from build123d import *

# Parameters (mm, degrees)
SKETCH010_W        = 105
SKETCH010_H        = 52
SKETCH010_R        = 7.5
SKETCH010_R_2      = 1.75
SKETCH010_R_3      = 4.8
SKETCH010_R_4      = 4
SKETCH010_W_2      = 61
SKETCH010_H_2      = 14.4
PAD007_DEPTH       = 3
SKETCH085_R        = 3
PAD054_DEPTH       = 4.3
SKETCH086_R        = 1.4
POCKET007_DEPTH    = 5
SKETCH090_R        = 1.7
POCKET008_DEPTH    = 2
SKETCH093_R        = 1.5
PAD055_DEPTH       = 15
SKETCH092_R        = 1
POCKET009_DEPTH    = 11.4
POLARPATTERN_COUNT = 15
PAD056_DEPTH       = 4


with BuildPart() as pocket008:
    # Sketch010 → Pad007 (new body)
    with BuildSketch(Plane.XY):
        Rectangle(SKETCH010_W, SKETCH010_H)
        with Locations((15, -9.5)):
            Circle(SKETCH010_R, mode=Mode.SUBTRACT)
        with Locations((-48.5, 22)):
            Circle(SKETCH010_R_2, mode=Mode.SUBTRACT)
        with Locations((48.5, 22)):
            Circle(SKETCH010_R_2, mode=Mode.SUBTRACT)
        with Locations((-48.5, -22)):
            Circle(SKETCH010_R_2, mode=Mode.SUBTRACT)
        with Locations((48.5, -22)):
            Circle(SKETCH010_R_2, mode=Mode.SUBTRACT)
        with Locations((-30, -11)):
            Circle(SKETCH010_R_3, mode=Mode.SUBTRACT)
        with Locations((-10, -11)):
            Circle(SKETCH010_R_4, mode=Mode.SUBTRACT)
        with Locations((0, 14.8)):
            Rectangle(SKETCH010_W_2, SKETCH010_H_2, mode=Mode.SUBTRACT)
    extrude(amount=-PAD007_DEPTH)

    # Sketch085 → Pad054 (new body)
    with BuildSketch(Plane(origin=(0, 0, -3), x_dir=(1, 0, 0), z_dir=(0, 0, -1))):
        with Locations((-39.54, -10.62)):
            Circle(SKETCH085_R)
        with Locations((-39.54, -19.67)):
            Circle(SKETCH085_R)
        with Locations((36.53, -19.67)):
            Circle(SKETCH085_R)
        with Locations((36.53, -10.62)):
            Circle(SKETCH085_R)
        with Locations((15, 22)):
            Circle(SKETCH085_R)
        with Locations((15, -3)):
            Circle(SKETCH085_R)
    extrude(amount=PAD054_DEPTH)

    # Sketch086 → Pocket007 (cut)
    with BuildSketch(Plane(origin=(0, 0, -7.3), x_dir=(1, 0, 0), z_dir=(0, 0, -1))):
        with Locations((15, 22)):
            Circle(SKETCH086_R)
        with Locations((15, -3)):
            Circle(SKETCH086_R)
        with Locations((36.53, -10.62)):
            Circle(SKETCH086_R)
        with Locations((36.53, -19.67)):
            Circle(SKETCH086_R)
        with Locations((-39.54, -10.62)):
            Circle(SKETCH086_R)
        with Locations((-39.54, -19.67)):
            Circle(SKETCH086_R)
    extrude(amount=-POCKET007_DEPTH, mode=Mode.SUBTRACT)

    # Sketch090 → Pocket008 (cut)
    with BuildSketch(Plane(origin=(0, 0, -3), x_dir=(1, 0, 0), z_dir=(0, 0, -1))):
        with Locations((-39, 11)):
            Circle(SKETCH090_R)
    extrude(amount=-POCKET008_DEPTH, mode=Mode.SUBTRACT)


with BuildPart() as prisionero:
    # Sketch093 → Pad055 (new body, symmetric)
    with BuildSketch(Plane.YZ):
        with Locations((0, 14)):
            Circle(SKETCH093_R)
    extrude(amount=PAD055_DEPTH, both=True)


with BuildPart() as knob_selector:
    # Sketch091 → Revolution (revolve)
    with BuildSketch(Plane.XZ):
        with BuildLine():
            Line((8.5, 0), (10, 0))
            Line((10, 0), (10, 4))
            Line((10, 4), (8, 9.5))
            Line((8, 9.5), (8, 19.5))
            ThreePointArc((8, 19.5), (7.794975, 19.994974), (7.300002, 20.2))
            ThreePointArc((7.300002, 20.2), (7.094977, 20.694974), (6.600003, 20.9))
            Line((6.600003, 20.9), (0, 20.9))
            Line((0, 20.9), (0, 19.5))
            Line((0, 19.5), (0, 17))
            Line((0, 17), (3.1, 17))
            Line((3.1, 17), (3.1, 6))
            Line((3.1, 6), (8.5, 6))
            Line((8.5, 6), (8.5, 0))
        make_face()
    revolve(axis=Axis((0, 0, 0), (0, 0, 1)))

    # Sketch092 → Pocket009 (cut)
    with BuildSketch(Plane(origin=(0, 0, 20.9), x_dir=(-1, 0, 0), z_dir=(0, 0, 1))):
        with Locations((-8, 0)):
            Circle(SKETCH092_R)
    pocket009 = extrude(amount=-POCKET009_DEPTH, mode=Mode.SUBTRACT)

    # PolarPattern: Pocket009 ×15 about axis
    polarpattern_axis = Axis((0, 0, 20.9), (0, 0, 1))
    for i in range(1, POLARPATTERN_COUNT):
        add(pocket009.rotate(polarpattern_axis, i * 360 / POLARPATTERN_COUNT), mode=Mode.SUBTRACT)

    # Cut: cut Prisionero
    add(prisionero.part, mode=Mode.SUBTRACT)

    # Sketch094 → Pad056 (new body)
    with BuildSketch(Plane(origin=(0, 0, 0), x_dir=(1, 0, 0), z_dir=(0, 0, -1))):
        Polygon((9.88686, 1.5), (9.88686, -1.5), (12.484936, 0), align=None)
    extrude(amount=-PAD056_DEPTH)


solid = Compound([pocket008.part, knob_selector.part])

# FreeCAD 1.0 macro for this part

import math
import FreeCAD as App
import Part
import Sketcher

V = App.Vector
Q = App.Units.Quantity

doc = App.newDocument("Part")
params = doc.addObject("Spreadsheet::Sheet", "Params")
for row, (alias, value) in enumerate([
    ("sketch1_diameter", "8 mm"),
    ("sketch1_diameter2", "15 mm"),
    ("sketch1_diameter3", "3.5 mm"),
    ("sketch1_diameter4", "9.6 mm"),
    ("sketch1_width", "105 mm"),
    ("pad1_length", "3 mm"),
    ("sketch2_diameter", "6 mm"),
    ("pad2_length", "4.3 mm"),
    ("sketch3_diameter", "2.8 mm"),
    ("pocket1_length", "5 mm"),
    ("sketch4_diameter", "3.4 mm"),
    ("pocket2_length", "2 mm"),
    ("sketch5_diameter", "3 mm"),
    ("pad3_length", "30 mm"),
    ("sketch6_radius", "0.700001 mm"),
    ("sketch6_height", "4 mm"),
    ("sketch6_height2", "10 mm"),
    ("sketch6_height3", "11 mm"),
    ("sketch6_height4", "6 mm"),
    ("revolution_angle", "360 deg"),
    ("sketch7_diameter", "2 mm"),
    ("pocket3_length", "11.4 mm"),
    ("sketch8_height", "3 mm"),
    ("pad4_length", "4 mm"),
], start=1):
    params.set(f"A{row}", alias)
    params.set(f"B{row}", "=" + value)
    params.setAlias(f"B{row}", alias)

body = doc.addObject("PartDesign::Body", "Body")

# Sketch on XY plane
sketch1 = body.newObject("Sketcher::SketchObject", "Sketch")
sketch1.AttachmentSupport = (doc.getObject("XY_Plane"), [""])
sketch1.MapMode = "FlatFace"
sketch1.addGeometry(Part.LineSegment(V(-52.5, 26, 0), V(-52.5, -26, 0)), False)
sketch1.addGeometry(Part.LineSegment(V(-52.5, -26, 0), V(52.5, -26, 0)), False)
sketch1.addGeometry(Part.LineSegment(V(52.5, -26, 0), V(52.5, 26, 0)), False)
sketch1.addGeometry(Part.LineSegment(V(52.5, 26, 0), V(-52.5, 26, 0)), False)
sketch1.addGeometry(Part.Circle(V(-48.5, -22, 0), V(0, 0, 1), 1.75), False)
sketch1.addGeometry(Part.Circle(V(-30, -11, 0), V(0, 0, 1), 4.8), False)
sketch1.addGeometry(Part.Circle(V(-10, -11, 0), V(0, 0, 1), 4), False)
sketch1.addGeometry(Part.Circle(V(48.5, -22, 0), V(0, 0, 1), 1.75), False)
sketch1.addGeometry(Part.Circle(V(15, -9.5, 0), V(0, 0, 1), 7.5), False)
sketch1.addGeometry(Part.Circle(V(-48.5, 22, 0), V(0, 0, 1), 1.75), False)
sketch1.addGeometry(Part.LineSegment(V(30.5, 7.6, 0), V(-30.5, 7.6, 0)), False)
sketch1.addGeometry(Part.LineSegment(V(-30.5, 7.6, 0), V(-30.5, 22, 0)), False)
sketch1.addGeometry(Part.LineSegment(V(-30.5, 22, 0), V(30.5, 22, 0)), False)
sketch1.addGeometry(Part.LineSegment(V(30.5, 22, 0), V(30.5, 7.6, 0)), False)
sketch1.addGeometry(Part.Circle(V(48.5, 22, 0), V(0, 0, 1), 1.75), False)
sketch1.addConstraint(Sketcher.Constraint("Coincident", 0, 2, 1, 1))
sketch1.addConstraint(Sketcher.Constraint("Coincident", 1, 2, 2, 1))
sketch1.addConstraint(Sketcher.Constraint("Coincident", 2, 2, 3, 1))
sketch1.addConstraint(Sketcher.Constraint("Coincident", 3, 2, 0, 1))
sketch1.addConstraint(Sketcher.Constraint("Coincident", 10, 2, 11, 1))
sketch1.addConstraint(Sketcher.Constraint("Coincident", 11, 2, 12, 1))
sketch1.addConstraint(Sketcher.Constraint("Coincident", 12, 2, 13, 1))
sketch1.addConstraint(Sketcher.Constraint("Coincident", 13, 2, 10, 1))
sketch1.addConstraint(Sketcher.Constraint("Vertical", 0))
sketch1.addConstraint(Sketcher.Constraint("Horizontal", 1))
sketch1.addConstraint(Sketcher.Constraint("Vertical", 2))
sketch1.addConstraint(Sketcher.Constraint("Horizontal", 3))
sketch1.addConstraint(Sketcher.Constraint("Horizontal", 10))
sketch1.addConstraint(Sketcher.Constraint("Vertical", 11))
sketch1.addConstraint(Sketcher.Constraint("Horizontal", 12))
sketch1.addConstraint(Sketcher.Constraint("Vertical", 13))
sketch1.addConstraint(Sketcher.Constraint("Equal", 4, 7))
sketch1.addConstraint(Sketcher.Constraint("Equal", 7, 9))
sketch1.addConstraint(Sketcher.Constraint("Equal", 9, 14))
sketch1.addConstraint(Sketcher.Constraint("Symmetric", 7, 3, 9, 3, -1, 1))
sketch1.addConstraint(Sketcher.Constraint("Symmetric", 4, 3, 14, 3, -1, 1))
sketch1.addConstraint(Sketcher.Constraint("Symmetric", 0, 2, 2, 2, -1, 1))
sketch1.addConstraint(Sketcher.Constraint("Symmetric", 4, 3, 7, 3, -2))
sketch1.addConstraint(Sketcher.Constraint("Horizontal", 5, 3, 6, 3))
sketch1.addConstraint(Sketcher.Constraint("Horizontal", 14, 3, 11, 2))
sketch1.addConstraint(Sketcher.Constraint("Diameter", 6, Q("8 mm")))
sketch1.addConstraint(Sketcher.Constraint("Diameter", 8, Q("15 mm")))
sketch1.addConstraint(Sketcher.Constraint("Diameter", 4, Q("3.5 mm")))
sketch1.addConstraint(Sketcher.Constraint("Diameter", 5, Q("9.6 mm")))
sketch1.addConstraint(Sketcher.Constraint("DistanceX", 1, 1, 1, 2, Q("105 mm")))
sketch1.addConstraint(Sketcher.Constraint("DistanceX", 10, 2, 10, 1, Q("61 mm")))
sketch1.addConstraint(Sketcher.Constraint("DistanceY", 0, 2, 0, 1, Q("52 mm")))
sketch1.addConstraint(Sketcher.Constraint("DistanceY", 11, 1, 11, 2, Q("14.4 mm")))
sketch1.addConstraint(Sketcher.Constraint("DistanceY", 4, 3, -1, 1, Q("22 mm")))
sketch1.addConstraint(Sketcher.Constraint("DistanceX", 5, 3, -1, 1, Q("30 mm")))
sketch1.addConstraint(Sketcher.Constraint("DistanceY", 5, 3, -1, 1, Q("11 mm")))
sketch1.addConstraint(Sketcher.Constraint("DistanceX", 6, 3, -1, 1, Q("10 mm")))
sketch1.addConstraint(Sketcher.Constraint("DistanceX", -1, 1, 8, 3, Q("15 mm")))
sketch1.addConstraint(Sketcher.Constraint("DistanceX", 4, 3, 7, 3, Q("97 mm")))
sketch1.addConstraint(Sketcher.Constraint("DistanceX", 9, 3, 10, 2, Q("18 mm")))
sketch1.addConstraint(Sketcher.Constraint("DistanceY", 8, 3, -1, 1, Q("9.5 mm")))
sketch1.setExpression("Constraints[25]", "Params.sketch1_diameter")
sketch1.setExpression("Constraints[26]", "Params.sketch1_diameter2")
sketch1.setExpression("Constraints[27]", "Params.sketch1_diameter3")
sketch1.setExpression("Constraints[28]", "Params.sketch1_diameter4")
sketch1.setExpression("Constraints[29]", "Params.sketch1_width")
pad1 = body.newObject("PartDesign::Pad", "Pad")
pad1.Profile = sketch1
pad1.setExpression("Length", "Params.pad1_length")
pad1.Reversed = True

# Sketch on XY plane
sketch2 = body.newObject("Sketcher::SketchObject", "Sketch001")
sketch2.AttachmentSupport = (doc.getObject("XY_Plane"), [""])
sketch2.MapMode = "FlatFace"
sketch2.AttachmentOffset = App.Placement(V(0, 0, -3), App.Rotation())
sketch2.addGeometry(Part.Circle(V(-39.54, 10.62, 0), V(0, 0, 1), 3), False)
sketch2.addGeometry(Part.Circle(V(-39.54, 19.67, 0), V(0, 0, 1), 3), False)
sketch2.addGeometry(Part.Circle(V(36.53, 19.67, 0), V(0, 0, 1), 3), False)
sketch2.addGeometry(Part.Circle(V(36.53, 10.62, 0), V(0, 0, 1), 3), False)
sketch2.addGeometry(Part.Circle(V(15, -22, 0), V(0, 0, 1), 3), False)
sketch2.addGeometry(Part.Circle(V(15, 3, 0), V(0, 0, 1), 3), False)
sketch2.addConstraint(Sketcher.Constraint("Equal", 0, 1))
sketch2.addConstraint(Sketcher.Constraint("Equal", 1, 2))
sketch2.addConstraint(Sketcher.Constraint("Equal", 2, 3))
sketch2.addConstraint(Sketcher.Constraint("Equal", 3, 4))
sketch2.addConstraint(Sketcher.Constraint("Equal", 4, 5))
sketch2.addConstraint(Sketcher.Constraint("Horizontal", 1, 3, 2, 3))
sketch2.addConstraint(Sketcher.Constraint("Horizontal", 0, 3, 3, 3))
sketch2.addConstraint(Sketcher.Constraint("Vertical", 0, 3, 1, 3))
sketch2.addConstraint(Sketcher.Constraint("Vertical", 2, 3, 3, 3))
sketch2.addConstraint(Sketcher.Constraint("Vertical", 4, 3, 5, 3))
sketch2.addConstraint(Sketcher.Constraint("Diameter", 0, Q("6 mm")))
sketch2.addConstraint(Sketcher.Constraint("DistanceX", -1, 1, 4, 3, Q("15 mm")))
sketch2.addConstraint(Sketcher.Constraint("DistanceY", 4, 3, -1, 1, Q("22 mm")))
sketch2.addConstraint(Sketcher.Constraint("DistanceY", -1, 1, 5, 3, Q("3 mm")))
sketch2.addConstraint(Sketcher.Constraint("DistanceX", 0, 3, -1, 1, Q("39.54 mm")))
sketch2.addConstraint(Sketcher.Constraint("DistanceY", -1, 1, 0, 3, Q("10.62 mm")))
sketch2.addConstraint(Sketcher.Constraint("DistanceY", -1, 1, 1, 3, Q("19.67 mm")))
sketch2.addConstraint(Sketcher.Constraint("DistanceX", -1, 1, 2, 3, Q("36.53 mm")))
sketch2.setExpression("Constraints[10]", "Params.sketch2_diameter")
pad2 = body.newObject("PartDesign::Pad", "Pad001")
pad2.Profile = sketch2
pad2.setExpression("Length", "Params.pad2_length")
pad2.Reversed = True

# Sketch on XY plane
sketch3 = body.newObject("Sketcher::SketchObject", "Sketch002")
sketch3.AttachmentSupport = (doc.getObject("XY_Plane"), [""])
sketch3.MapMode = "FlatFace"
sketch3.AttachmentOffset = App.Placement(V(0, 0, -7.3), App.Rotation())
sketch3.addGeometry(Part.Circle(V(15, -22, 0), V(0, 0, 1), 1.4), False)
sketch3.addGeometry(Part.Circle(V(15, 3, 0), V(0, 0, 1), 1.4), False)
sketch3.addGeometry(Part.Circle(V(36.53, 10.62, 0), V(0, 0, 1), 1.4), False)
sketch3.addGeometry(Part.Circle(V(36.53, 19.67, 0), V(0, 0, 1), 1.4), False)
sketch3.addGeometry(Part.Circle(V(-39.54, 10.62, 0), V(0, 0, 1), 1.4), False)
sketch3.addGeometry(Part.Circle(V(-39.54, 19.67, 0), V(0, 0, 1), 1.4), False)
sketch3.addConstraint(Sketcher.Constraint("Equal", 0, 1))
sketch3.addConstraint(Sketcher.Constraint("Equal", 1, 2))
sketch3.addConstraint(Sketcher.Constraint("Equal", 2, 3))
sketch3.addConstraint(Sketcher.Constraint("Equal", 3, 4))
sketch3.addConstraint(Sketcher.Constraint("Equal", 4, 5))
sketch3.addConstraint(Sketcher.Constraint("Horizontal", 2, 3, 4, 3))
sketch3.addConstraint(Sketcher.Constraint("Horizontal", 3, 3, 5, 3))
sketch3.addConstraint(Sketcher.Constraint("Vertical", 0, 3, 1, 3))
sketch3.addConstraint(Sketcher.Constraint("Vertical", 2, 3, 3, 3))
sketch3.addConstraint(Sketcher.Constraint("Vertical", 4, 3, 5, 3))
sketch3.addConstraint(Sketcher.Constraint("Diameter", 0, Q("2.8 mm")))
sketch3.addConstraint(Sketcher.Constraint("DistanceX", -1, 1, 0, 3, Q("15 mm")))
sketch3.addConstraint(Sketcher.Constraint("DistanceY", 0, 3, -1, 1, Q("22 mm")))
sketch3.addConstraint(Sketcher.Constraint("DistanceY", -1, 1, 1, 3, Q("3 mm")))
sketch3.addConstraint(Sketcher.Constraint("DistanceX", -1, 1, 2, 3, Q("36.53 mm")))
sketch3.addConstraint(Sketcher.Constraint("DistanceY", -1, 1, 2, 3, Q("10.62 mm")))
sketch3.addConstraint(Sketcher.Constraint("DistanceY", -1, 1, 3, 3, Q("19.67 mm")))
sketch3.addConstraint(Sketcher.Constraint("DistanceX", 4, 3, -1, 1, Q("39.54 mm")))
sketch3.setExpression("Constraints[10]", "Params.sketch3_diameter")
pocket1 = body.newObject("PartDesign::Pocket", "Pocket")
pocket1.Profile = sketch3
pocket1.setExpression("Length", "Params.pocket1_length")
pocket1.Reversed = True

# Sketch on XY plane
sketch4 = body.newObject("Sketcher::SketchObject", "Sketch003")
sketch4.AttachmentSupport = (doc.getObject("XY_Plane"), [""])
sketch4.MapMode = "FlatFace"
sketch4.AttachmentOffset = App.Placement(V(0, 0, -3), App.Rotation())
sketch4.addGeometry(Part.Circle(V(-39, -11, 0), V(0, 0, 1), 1.7), False)
sketch4.addConstraint(Sketcher.Constraint("Diameter", 0, Q("3.4 mm")))
sketch4.addConstraint(Sketcher.Constraint("DistanceX", 0, 3, -1, 1, Q("39 mm")))
sketch4.addConstraint(Sketcher.Constraint("DistanceY", 0, 3, -1, 1, Q("11 mm")))
sketch4.setExpression("Constraints[0]", "Params.sketch4_diameter")
pocket2 = body.newObject("PartDesign::Pocket", "Pocket001")
pocket2.Profile = sketch4
pocket2.setExpression("Length", "Params.pocket2_length")
pocket2.Reversed = True
body2 = doc.addObject("PartDesign::Body", "Body001")

# Sketch on YZ plane
sketch5 = body2.newObject("Sketcher::SketchObject", "Sketch004")
sketch5.AttachmentSupport = (doc.getObject("YZ_Plane001"), [""])
sketch5.MapMode = "FlatFace"
sketch5.addGeometry(Part.Circle(V(0, 14, 0), V(0, 0, 1), 1.5), False)
sketch5.addConstraint(Sketcher.Constraint("PointOnObject", 0, 3, -2))
sketch5.addConstraint(Sketcher.Constraint("Diameter", 0, Q("3 mm")))
sketch5.addConstraint(Sketcher.Constraint("DistanceY", -1, 1, 0, 3, Q("14 mm")))
sketch5.setExpression("Constraints[1]", "Params.sketch5_diameter")
pad3 = body2.newObject("PartDesign::Pad", "Pad002")
pad3.Profile = sketch5
pad3.setExpression("Length", "Params.pad3_length")
pad3.Midplane = True
body3 = doc.addObject("PartDesign::Body", "Body002")

# Sketch on XZ plane
sketch6 = body3.newObject("Sketcher::SketchObject", "Sketch005")
sketch6.AttachmentSupport = (doc.getObject("XZ_Plane002"), [""])
sketch6.MapMode = "FlatFace"
sketch6.addGeometry(Part.LineSegment(V(8.5, 0, 0), V(10, 0, 0)), False)
sketch6.addGeometry(Part.LineSegment(V(10, 0, 0), V(10, 4, 0)), False)
sketch6.addGeometry(Part.LineSegment(V(10, 4, 0), V(8, 9.5, 0)), False)
sketch6.addGeometry(Part.LineSegment(V(8, 9.5, 0), V(8, 19.5, 0)), False)
sketch6.addGeometry(Part.ArcOfCircle(Part.Circle(V(7.299999, 19.499999, 0), V(0, 0, 1), 0.700001), math.radians(0.000069), math.radians(89.999767)), False)
sketch6.addGeometry(Part.ArcOfCircle(Part.Circle(V(6.600001, 20.199999, 0), V(0, 0, 1), 0.700001), math.radians(0.000069), math.radians(89.999849)), False)
sketch6.addGeometry(Part.LineSegment(V(6.600003, 20.9, 0), V(0, 20.9, 0)), False)
sketch6.addGeometry(Part.LineSegment(V(0, 20.9, 0), V(0, 17, 0)), False)
sketch6.addGeometry(Part.LineSegment(V(0, 17, 0), V(3.1, 17, 0)), False)
sketch6.addGeometry(Part.LineSegment(V(3.1, 17, 0), V(3.1, 6, 0)), False)
sketch6.addGeometry(Part.LineSegment(V(3.1, 6, 0), V(8.5, 6, 0)), False)
sketch6.addGeometry(Part.LineSegment(V(8.5, 6, 0), V(8.5, 0, 0)), False)
sketch6.addConstraint(Sketcher.Constraint("Coincident", 0, 2, 1, 1))
sketch6.addConstraint(Sketcher.Constraint("Coincident", 1, 2, 2, 1))
sketch6.addConstraint(Sketcher.Constraint("Coincident", 2, 2, 3, 1))
sketch6.addConstraint(Sketcher.Constraint("Tangent", 3, 2, 4, 1))
sketch6.addConstraint(Sketcher.Constraint("Coincident", 4, 2, 5, 1))
sketch6.addConstraint(Sketcher.Constraint("Coincident", 5, 2, 6, 1))
sketch6.addConstraint(Sketcher.Constraint("Coincident", 6, 2, 7, 1))
sketch6.addConstraint(Sketcher.Constraint("Coincident", 7, 2, 8, 1))
sketch6.addConstraint(Sketcher.Constraint("Coincident", 8, 2, 9, 1))
sketch6.addConstraint(Sketcher.Constraint("Coincident", 9, 2, 10, 1))
sketch6.addConstraint(Sketcher.Constraint("Coincident", 10, 2, 11, 1))
sketch6.addConstraint(Sketcher.Constraint("Coincident", 11, 2, 0, 1))
sketch6.addConstraint(Sketcher.Constraint("Horizontal", 0))
sketch6.addConstraint(Sketcher.Constraint("Vertical", 1))
sketch6.addConstraint(Sketcher.Constraint("Vertical", 3))
sketch6.addConstraint(Sketcher.Constraint("Horizontal", 6))
sketch6.addConstraint(Sketcher.Constraint("Vertical", 7))
sketch6.addConstraint(Sketcher.Constraint("Horizontal", 8))
sketch6.addConstraint(Sketcher.Constraint("Vertical", 9))
sketch6.addConstraint(Sketcher.Constraint("Horizontal", 10))
sketch6.addConstraint(Sketcher.Constraint("Vertical", 11))
sketch6.addConstraint(Sketcher.Constraint("Equal", 4, 5))
sketch6.addConstraint(Sketcher.Constraint("PointOnObject", 0, 2, -1))
sketch6.addConstraint(Sketcher.Constraint("PointOnObject", 6, 2, -2))
sketch6.addConstraint(Sketcher.Constraint("Horizontal", 5, 3, 4, 2))
sketch6.addConstraint(Sketcher.Constraint("Radius", 4, Q("0.700001 mm")))
sketch6.addConstraint(Sketcher.Constraint("DistanceY", 1, 1, 1, 2, Q("4 mm")))
sketch6.addConstraint(Sketcher.Constraint("DistanceY", 3, 1, 3, 2, Q("10 mm")))
sketch6.addConstraint(Sketcher.Constraint("DistanceY", 9, 2, 9, 1, Q("11 mm")))
sketch6.addConstraint(Sketcher.Constraint("DistanceY", 11, 2, 11, 1, Q("6 mm")))
sketch6.addConstraint(Sketcher.Constraint("DistanceX", 0, 1, 0, 2, Q("1.5 mm")))
sketch6.addConstraint(Sketcher.Constraint("DistanceX", 8, 1, 8, 2, Q("3.1 mm")))
sketch6.addConstraint(Sketcher.Constraint("DistanceX", 10, 1, 10, 2, Q("5.4 mm")))
sketch6.addConstraint(Sketcher.Constraint("DistanceY", 7, 2, 7, 1, Q("3.9 mm")))
sketch6.addConstraint(Sketcher.Constraint("DistanceX", -1, 1, 2, 2, Q("8 mm")))
sketch6.addConstraint(Sketcher.Constraint("DistanceX", -1, 1, 5, 3, Q("6.600001 mm")))
sketch6.addConstraint(Sketcher.Constraint("DistanceX", 5, 2, 4, 2, Q("0.699999 mm")))
sketch6.setExpression("Constraints[25]", "Params.sketch6_radius")
sketch6.setExpression("Constraints[26]", "Params.sketch6_height")
sketch6.setExpression("Constraints[27]", "Params.sketch6_height2")
sketch6.setExpression("Constraints[28]", "Params.sketch6_height3")
sketch6.setExpression("Constraints[29]", "Params.sketch6_height4")
revolution = body3.newObject("PartDesign::Revolution", "Revolution")
revolution.Profile = sketch6
revolution.ReferenceAxis = (sketch6, ["V_Axis"])
revolution.setExpression("Angle", "Params.revolution_angle")

# Sketch on XY plane
sketch7 = body3.newObject("Sketcher::SketchObject", "Sketch006")
sketch7.AttachmentSupport = (doc.getObject("XY_Plane002"), [""])
sketch7.MapMode = "FlatFace"
sketch7.AttachmentOffset = App.Placement(V(0, 0, 20.9), App.Rotation())
sketch7.addGeometry(Part.Circle(V(8, 0, 0), V(0, 0, 1), 1), False)
sketch7.addConstraint(Sketcher.Constraint("PointOnObject", 0, 3, -1))
sketch7.addConstraint(Sketcher.Constraint("Diameter", 0, Q("2 mm")))
sketch7.addConstraint(Sketcher.Constraint("DistanceX", -1, 1, 0, 3, Q("8 mm")))
sketch7.setExpression("Constraints[1]", "Params.sketch7_diameter")
pocket3 = body3.newObject("PartDesign::Pocket", "Pocket002")
pocket3.Profile = sketch7
pocket3.setExpression("Length", "Params.pocket3_length")
doc.recompute()

polarpattern = body3.newObject("PartDesign::PolarPattern", "PolarPattern")
polarpattern.Originals = [pocket3]
polarpattern.Axis = (doc.getObject("Z_Axis002"), [""])
polarpattern.Angle = 360
polarpattern.Occurrences = 15
body3.Tip = polarpattern
doc.recompute()

boolean = body3.newObject("PartDesign::Boolean", "Boolean")
boolean.Type = "Cut"
boolean.addObjects([body2])

# Sketch on XY plane
sketch8 = body3.newObject("Sketcher::SketchObject", "Sketch007")
sketch8.AttachmentSupport = (doc.getObject("XY_Plane002"), [""])
sketch8.MapMode = "FlatFace"
sketch8.addGeometry(Part.LineSegment(V(9.88686, -1.5, 0), V(9.88686, 1.5, 0)), False)
sketch8.addGeometry(Part.LineSegment(V(9.88686, 1.5, 0), V(12.484936, 0, 0)), False)
sketch8.addGeometry(Part.LineSegment(V(12.484936, 0, 0), V(9.88686, -1.5, 0)), False)
sketch8.addConstraint(Sketcher.Constraint("Coincident", 0, 2, 1, 1))
sketch8.addConstraint(Sketcher.Constraint("Coincident", 1, 2, 2, 1))
sketch8.addConstraint(Sketcher.Constraint("Coincident", 2, 2, 0, 1))
sketch8.addConstraint(Sketcher.Constraint("Vertical", 0))
sketch8.addConstraint(Sketcher.Constraint("PointOnObject", 1, 2, -1))
sketch8.addConstraint(Sketcher.Constraint("Equal", 1, 2))
sketch8.addConstraint(Sketcher.Constraint("DistanceY", 0, 1, 0, 2, Q("3 mm")))
sketch8.addConstraint(Sketcher.Constraint("Angle", 1, Q("-30.000002 deg")))
sketch8.addConstraint(Sketcher.Constraint("DistanceX", -1, 1, 0, 2, Q("9.88686 mm")))
sketch8.setExpression("Constraints[6]", "Params.sketch8_height")
pad4 = body3.newObject("PartDesign::Pad", "Pad003")
pad4.Profile = sketch8
pad4.setExpression("Length", "Params.pad4_length")

doc.recompute()
